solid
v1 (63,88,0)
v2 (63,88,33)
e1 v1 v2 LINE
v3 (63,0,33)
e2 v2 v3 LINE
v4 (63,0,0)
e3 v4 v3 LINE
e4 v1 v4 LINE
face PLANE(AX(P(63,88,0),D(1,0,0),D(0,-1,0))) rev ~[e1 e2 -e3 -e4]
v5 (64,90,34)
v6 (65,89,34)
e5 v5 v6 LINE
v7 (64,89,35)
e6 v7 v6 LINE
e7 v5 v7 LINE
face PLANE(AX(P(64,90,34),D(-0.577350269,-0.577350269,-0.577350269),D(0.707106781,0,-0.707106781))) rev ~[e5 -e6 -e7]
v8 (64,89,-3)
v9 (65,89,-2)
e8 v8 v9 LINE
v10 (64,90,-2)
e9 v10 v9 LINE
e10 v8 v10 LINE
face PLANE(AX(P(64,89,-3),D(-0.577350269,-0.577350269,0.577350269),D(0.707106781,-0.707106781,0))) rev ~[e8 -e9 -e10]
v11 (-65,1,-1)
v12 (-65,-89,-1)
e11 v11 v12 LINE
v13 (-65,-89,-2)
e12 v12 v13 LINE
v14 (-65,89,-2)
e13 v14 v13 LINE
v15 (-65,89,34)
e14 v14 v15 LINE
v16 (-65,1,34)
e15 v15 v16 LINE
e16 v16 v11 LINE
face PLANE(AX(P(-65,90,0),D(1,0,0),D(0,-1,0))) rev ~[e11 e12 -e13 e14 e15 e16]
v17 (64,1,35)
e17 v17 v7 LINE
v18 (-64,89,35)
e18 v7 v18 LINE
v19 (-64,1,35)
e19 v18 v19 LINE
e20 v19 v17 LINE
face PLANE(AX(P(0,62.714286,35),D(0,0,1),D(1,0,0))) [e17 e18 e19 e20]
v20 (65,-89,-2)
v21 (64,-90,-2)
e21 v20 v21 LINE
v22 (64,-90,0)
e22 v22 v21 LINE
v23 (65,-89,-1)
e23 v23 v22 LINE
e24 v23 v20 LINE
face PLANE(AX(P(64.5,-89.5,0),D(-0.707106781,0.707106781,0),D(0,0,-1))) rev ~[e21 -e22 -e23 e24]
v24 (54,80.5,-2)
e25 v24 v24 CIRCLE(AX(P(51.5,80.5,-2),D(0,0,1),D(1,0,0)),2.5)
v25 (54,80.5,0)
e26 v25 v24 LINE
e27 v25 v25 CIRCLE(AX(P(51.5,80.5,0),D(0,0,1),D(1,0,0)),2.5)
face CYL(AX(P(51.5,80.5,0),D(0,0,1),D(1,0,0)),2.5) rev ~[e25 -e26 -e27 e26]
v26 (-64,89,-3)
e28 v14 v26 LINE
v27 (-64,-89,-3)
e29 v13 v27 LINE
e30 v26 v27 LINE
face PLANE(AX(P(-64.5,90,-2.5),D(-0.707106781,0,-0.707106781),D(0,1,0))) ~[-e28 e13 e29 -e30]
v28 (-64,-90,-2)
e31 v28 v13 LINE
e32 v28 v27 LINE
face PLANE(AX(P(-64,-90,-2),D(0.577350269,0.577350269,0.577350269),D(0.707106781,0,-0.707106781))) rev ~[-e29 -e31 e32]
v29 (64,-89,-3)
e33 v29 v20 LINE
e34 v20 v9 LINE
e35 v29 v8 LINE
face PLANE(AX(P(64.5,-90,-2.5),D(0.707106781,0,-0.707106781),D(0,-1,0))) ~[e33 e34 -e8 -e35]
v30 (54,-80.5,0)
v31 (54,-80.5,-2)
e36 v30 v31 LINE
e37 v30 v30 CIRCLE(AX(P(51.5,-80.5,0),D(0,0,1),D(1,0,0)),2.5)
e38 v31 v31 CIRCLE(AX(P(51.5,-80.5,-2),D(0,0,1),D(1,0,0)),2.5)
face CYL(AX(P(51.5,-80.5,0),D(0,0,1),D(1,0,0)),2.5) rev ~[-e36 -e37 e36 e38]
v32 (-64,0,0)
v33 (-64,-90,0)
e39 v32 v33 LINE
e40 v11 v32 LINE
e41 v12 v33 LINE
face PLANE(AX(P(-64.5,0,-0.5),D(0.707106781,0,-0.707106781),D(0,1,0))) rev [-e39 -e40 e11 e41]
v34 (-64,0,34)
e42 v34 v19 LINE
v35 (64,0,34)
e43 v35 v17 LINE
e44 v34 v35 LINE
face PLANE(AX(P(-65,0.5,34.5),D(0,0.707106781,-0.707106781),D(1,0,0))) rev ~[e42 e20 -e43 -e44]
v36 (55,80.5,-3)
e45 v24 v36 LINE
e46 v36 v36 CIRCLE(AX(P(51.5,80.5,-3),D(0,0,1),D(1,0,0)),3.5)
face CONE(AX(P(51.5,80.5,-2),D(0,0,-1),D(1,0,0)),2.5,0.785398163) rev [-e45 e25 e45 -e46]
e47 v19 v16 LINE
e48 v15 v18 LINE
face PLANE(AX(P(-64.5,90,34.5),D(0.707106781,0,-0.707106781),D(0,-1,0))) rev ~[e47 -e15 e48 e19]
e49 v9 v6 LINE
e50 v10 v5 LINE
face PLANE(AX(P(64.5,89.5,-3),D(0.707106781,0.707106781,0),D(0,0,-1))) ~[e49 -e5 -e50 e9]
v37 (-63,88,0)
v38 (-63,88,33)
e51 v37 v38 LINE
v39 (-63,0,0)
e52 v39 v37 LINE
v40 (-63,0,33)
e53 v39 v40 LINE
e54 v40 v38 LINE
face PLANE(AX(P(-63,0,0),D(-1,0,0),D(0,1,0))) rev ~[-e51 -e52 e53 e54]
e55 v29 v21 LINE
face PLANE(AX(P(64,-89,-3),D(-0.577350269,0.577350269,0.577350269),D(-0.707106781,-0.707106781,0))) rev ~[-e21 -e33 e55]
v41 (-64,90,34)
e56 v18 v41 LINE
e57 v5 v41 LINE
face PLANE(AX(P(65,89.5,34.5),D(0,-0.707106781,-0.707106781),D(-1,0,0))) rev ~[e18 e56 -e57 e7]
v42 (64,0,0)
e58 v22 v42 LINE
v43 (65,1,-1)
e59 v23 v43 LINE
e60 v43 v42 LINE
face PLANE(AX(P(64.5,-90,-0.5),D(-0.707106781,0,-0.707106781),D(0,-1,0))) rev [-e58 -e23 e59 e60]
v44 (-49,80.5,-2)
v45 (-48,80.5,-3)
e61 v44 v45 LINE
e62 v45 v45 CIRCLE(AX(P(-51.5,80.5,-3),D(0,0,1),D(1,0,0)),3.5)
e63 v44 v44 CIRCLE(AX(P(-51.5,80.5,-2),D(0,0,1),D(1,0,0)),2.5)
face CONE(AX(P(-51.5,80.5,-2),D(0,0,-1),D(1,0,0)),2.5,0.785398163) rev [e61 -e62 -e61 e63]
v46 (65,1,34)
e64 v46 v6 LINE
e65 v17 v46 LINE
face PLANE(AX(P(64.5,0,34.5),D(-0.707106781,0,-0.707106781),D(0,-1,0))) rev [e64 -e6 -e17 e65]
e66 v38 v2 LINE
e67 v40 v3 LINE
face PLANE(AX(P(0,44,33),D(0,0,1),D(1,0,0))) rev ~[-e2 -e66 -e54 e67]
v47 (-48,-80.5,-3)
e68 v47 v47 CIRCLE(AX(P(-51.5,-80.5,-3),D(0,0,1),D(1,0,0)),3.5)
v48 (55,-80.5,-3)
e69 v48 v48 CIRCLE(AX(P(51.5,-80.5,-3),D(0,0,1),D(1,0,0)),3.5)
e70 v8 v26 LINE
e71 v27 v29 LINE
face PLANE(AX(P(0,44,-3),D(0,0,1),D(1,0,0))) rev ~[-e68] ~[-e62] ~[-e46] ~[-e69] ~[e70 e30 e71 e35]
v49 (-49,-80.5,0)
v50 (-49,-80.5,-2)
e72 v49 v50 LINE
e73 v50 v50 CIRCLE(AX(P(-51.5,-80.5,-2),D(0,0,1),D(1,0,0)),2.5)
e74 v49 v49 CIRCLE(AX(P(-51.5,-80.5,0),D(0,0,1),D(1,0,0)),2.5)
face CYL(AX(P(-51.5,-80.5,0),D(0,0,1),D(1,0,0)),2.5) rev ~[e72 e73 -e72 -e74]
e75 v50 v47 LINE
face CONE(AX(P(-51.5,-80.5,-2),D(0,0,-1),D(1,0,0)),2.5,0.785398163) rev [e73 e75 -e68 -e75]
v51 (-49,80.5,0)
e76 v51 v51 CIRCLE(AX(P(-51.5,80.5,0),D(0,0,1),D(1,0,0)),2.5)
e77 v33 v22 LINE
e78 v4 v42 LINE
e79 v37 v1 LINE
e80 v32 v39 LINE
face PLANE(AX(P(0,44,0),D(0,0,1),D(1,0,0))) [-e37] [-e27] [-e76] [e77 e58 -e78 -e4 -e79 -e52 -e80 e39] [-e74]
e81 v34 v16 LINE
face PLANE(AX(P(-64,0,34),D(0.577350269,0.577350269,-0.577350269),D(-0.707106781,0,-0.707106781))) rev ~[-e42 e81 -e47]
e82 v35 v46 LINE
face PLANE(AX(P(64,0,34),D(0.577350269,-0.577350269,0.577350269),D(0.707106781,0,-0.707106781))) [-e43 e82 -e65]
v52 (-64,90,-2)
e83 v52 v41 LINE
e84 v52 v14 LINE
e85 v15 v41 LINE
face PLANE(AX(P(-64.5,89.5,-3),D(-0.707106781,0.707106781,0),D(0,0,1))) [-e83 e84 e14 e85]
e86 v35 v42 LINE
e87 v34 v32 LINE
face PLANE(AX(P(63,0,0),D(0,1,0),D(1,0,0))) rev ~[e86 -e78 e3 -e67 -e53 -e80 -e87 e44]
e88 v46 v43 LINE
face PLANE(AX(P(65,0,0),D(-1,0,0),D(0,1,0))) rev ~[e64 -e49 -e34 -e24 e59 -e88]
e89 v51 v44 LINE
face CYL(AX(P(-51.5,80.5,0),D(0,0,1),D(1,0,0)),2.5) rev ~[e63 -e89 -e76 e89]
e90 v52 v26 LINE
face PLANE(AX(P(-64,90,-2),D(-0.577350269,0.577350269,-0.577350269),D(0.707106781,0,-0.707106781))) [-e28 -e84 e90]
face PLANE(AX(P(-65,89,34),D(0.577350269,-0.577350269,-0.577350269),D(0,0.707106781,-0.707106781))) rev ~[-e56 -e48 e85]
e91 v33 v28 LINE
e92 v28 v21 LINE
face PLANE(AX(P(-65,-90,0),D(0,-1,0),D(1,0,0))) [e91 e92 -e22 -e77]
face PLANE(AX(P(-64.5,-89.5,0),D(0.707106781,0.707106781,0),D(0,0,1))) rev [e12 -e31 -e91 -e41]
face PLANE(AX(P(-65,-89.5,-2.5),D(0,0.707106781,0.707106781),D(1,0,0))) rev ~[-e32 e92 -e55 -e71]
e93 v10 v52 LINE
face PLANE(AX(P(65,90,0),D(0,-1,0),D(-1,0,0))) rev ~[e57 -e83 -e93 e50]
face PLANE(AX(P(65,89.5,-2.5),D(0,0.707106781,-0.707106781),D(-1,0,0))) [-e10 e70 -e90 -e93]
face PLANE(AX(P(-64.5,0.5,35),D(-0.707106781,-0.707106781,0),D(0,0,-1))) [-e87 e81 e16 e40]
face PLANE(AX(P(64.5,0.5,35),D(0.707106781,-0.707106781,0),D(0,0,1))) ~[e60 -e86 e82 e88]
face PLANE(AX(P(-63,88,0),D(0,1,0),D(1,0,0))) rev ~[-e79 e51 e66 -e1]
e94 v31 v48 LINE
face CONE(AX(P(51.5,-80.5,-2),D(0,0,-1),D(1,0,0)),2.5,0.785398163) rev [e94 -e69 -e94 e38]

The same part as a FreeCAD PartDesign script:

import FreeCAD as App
import Part
import Sketcher
from FreeCAD import Vector


def edges_at(feature, points):
    """Names of the edges that pass closest to the given points."""
    edges = feature.Shape.Edges
    near = lambda p: min(range(len(edges)), key=lambda i: edges[i].distToShape(Part.Vertex(*p))[0])
    return sorted({f"Edge{near(p) + 1}" for p in points})

doc = App.newDocument("Part")
body = doc.addObject("PartDesign::Body", "Body")

sketch1 = doc.addObject("Sketcher::SketchObject", "Sketch")
body.addObject(sketch1)
sketch1.AttachmentSupport = (doc.XY_Plane, [""])
sketch1.MapMode = "FlatFace"
sketch1.addGeometry(Part.LineSegment(Vector(65, 90, 0), Vector(-65, 90, 0)), False)
sketch1.addGeometry(Part.LineSegment(Vector(-65, 90, 0), Vector(-65, -90, 0)), False)
sketch1.addGeometry(Part.LineSegment(Vector(-65, -90, 0), Vector(65, -90, 0)), False)
sketch1.addGeometry(Part.LineSegment(Vector(65, -90, 0), Vector(65, 90, 0)), False)
sketch1.addGeometry(Part.Circle(Vector(-51.5, -80.5, 0), Vector(0, 0, 1), 2.5), False)
sketch1.addGeometry(Part.Circle(Vector(51.5, -80.5, 0), Vector(0, 0, 1), 2.5), False)
sketch1.addGeometry(Part.Circle(Vector(-51.5, 80.5, 0), Vector(0, 0, 1), 2.5), False)
sketch1.addGeometry(Part.Circle(Vector(51.5, 80.5, 0), Vector(0, 0, 1), 2.5), False)
sketch1.addConstraint(Sketcher.Constraint("Coincident", 0, 2, 1, 1))
sketch1.addConstraint(Sketcher.Constraint("Coincident", 1, 2, 2, 1))
sketch1.addConstraint(Sketcher.Constraint("Coincident", 2, 2, 3, 1))
sketch1.addConstraint(Sketcher.Constraint("Coincident", 3, 2, 0, 1))
sketch1.addConstraint(Sketcher.Constraint("Horizontal", 0))
sketch1.addConstraint(Sketcher.Constraint("Vertical", 1))
sketch1.addConstraint(Sketcher.Constraint("Horizontal", 2))
sketch1.addConstraint(Sketcher.Constraint("Vertical", 3))
sketch1.addConstraint(Sketcher.Constraint("Equal", 4, 5))
sketch1.addConstraint(Sketcher.Constraint("Equal", 5, 6))
sketch1.addConstraint(Sketcher.Constraint("Equal", 6, 7))
sketch1.addConstraint(Sketcher.Constraint("Symmetric", 5, 3, 6, 3, -1, 1))
sketch1.addConstraint(Sketcher.Constraint("Symmetric", 4, 3, 7, 3, -1, 1))
sketch1.addConstraint(Sketcher.Constraint("Symmetric", 0, 2, 2, 2, -1, 1))
sketch1.addConstraint(Sketcher.Constraint("Symmetric", 4, 3, 5, 3, -2))
sketch1.addConstraint(Sketcher.Constraint("Diameter", 4, 5.0))
sketch1.addConstraint(Sketcher.Constraint("DistanceX", 0, 2, 0, 1, 130.0))
sketch1.addConstraint(Sketcher.Constraint("DistanceY", 1, 2, 1, 1, 180.0))
sketch1.addConstraint(Sketcher.Constraint("DistanceX", 4, 3, 5, 3, 103.0))
sketch1.addConstraint(Sketcher.Constraint("DistanceY", 4, 3, 6, 3, 161.0))
pad1 = doc.addObject("PartDesign::Pad", "Pad")
body.addObject(pad1)
pad1.Profile = sketch1
pad1.Length = 3
pad1.Reversed = True

sketch2 = doc.addObject("Sketcher::SketchObject", "Sketch001")
body.addObject(sketch2)
sketch2.AttachmentSupport = (doc.XY_Plane, [""])
sketch2.MapMode = "FlatFace"
sketch2.addGeometry(Part.LineSegment(Vector(65, 0, 0), Vector(65, 90, 0)), False)
sketch2.addGeometry(Part.LineSegment(Vector(65, 90, 0), Vector(-65, 90, 0)), False)
sketch2.addGeometry(Part.LineSegment(Vector(-65, 90, 0), Vector(-65, 0, 0)), False)
sketch2.addGeometry(Part.LineSegment(Vector(-65, 0, 0), Vector(-63, 0, 0)), False)
sketch2.addGeometry(Part.LineSegment(Vector(-63, 0, 0), Vector(-63, 88, 0)), False)
sketch2.addGeometry(Part.LineSegment(Vector(-63, 88, 0), Vector(63, 88, 0)), False)
sketch2.addGeometry(Part.LineSegment(Vector(63, 88, 0), Vector(63, 0, 0)), False)
sketch2.addGeometry(Part.LineSegment(Vector(63, 0, 0), Vector(65, 0, 0)), False)
sketch2.addConstraint(Sketcher.Constraint("Coincident", 0, 2, 1, 1))
sketch2.addConstraint(Sketcher.Constraint("Coincident", 1, 2, 2, 1))
sketch2.addConstraint(Sketcher.Constraint("Coincident", 2, 2, 3, 1))
sketch2.addConstraint(Sketcher.Constraint("Coincident", 3, 2, 4, 1))
sketch2.addConstraint(Sketcher.Constraint("Coincident", 4, 2, 5, 1))
sketch2.addConstraint(Sketcher.Constraint("Coincident", 5, 2, 6, 1))
sketch2.addConstraint(Sketcher.Constraint("Coincident", 6, 2, 7, 1))
sketch2.addConstraint(Sketcher.Constraint("Coincident", 7, 2, 0, 1))
sketch2.addConstraint(Sketcher.Constraint("Vertical", 0))
sketch2.addConstraint(Sketcher.Constraint("Horizontal", 1))
sketch2.addConstraint(Sketcher.Constraint("Vertical", 2))
sketch2.addConstraint(Sketcher.Constraint("Horizontal", 3))
sketch2.addConstraint(Sketcher.Constraint("Vertical", 4))
sketch2.addConstraint(Sketcher.Constraint("Horizontal", 5))
sketch2.addConstraint(Sketcher.Constraint("Vertical", 6))
sketch2.addConstraint(Sketcher.Constraint("Horizontal", 7))
sketch2.addConstraint(Sketcher.Constraint("Symmetric", 3, 2, 6, 2, -1, 1))
sketch2.addConstraint(Sketcher.Constraint("Symmetric", 2, 2, 7, 2, -2))
sketch2.addConstraint(Sketcher.Constraint("DistanceX", 1, 2, 1, 1, 130.0))
sketch2.addConstraint(Sketcher.Constraint("DistanceX", 3, 1, 3, 2, 2.0))
sketch2.addConstraint(Sketcher.Constraint("DistanceY", 0, 1, 0, 2, 90.0))
sketch2.addConstraint(Sketcher.Constraint("DistanceY", 4, 1, 4, 2, 88.0))
pad2 = doc.addObject("PartDesign::Pad", "Pad001")
body.addObject(pad2)
pad2.Profile = sketch2
pad2.Length = 35

sketch3 = doc.addObject("Sketcher::SketchObject", "Sketch002")
body.addObject(sketch3)
sketch3.AttachmentSupport = (doc.XY_Plane, [""])
sketch3.MapMode = "FlatFace"
sketch3.AttachmentOffset = App.Placement(Vector(0, 0, 33), App.Rotation())
sketch3.addGeometry(Part.LineSegment(Vector(65, 0, 0), Vector(65, 90, 0)), False)
sketch3.addGeometry(Part.LineSegment(Vector(65, 90, 0), Vector(-65, 90, 0)), False)
sketch3.addGeometry(Part.LineSegment(Vector(-65, 90, 0), Vector(-65, 0, 0)), False)
sketch3.addGeometry(Part.LineSegment(Vector(-65, 0, 0), Vector(65, 0, 0)), False)
sketch3.addConstraint(Sketcher.Constraint("Coincident", 0, 2, 1, 1))
sketch3.addConstraint(Sketcher.Constraint("Coincident", 1, 2, 2, 1))
sketch3.addConstraint(Sketcher.Constraint("Coincident", 2, 2, 3, 1))
sketch3.addConstraint(Sketcher.Constraint("Coincident", 3, 2, 0, 1))
sketch3.addConstraint(Sketcher.Constraint("Vertical", 0))
sketch3.addConstraint(Sketcher.Constraint("Horizontal", 1))
sketch3.addConstraint(Sketcher.Constraint("Vertical", 2))
sketch3.addConstraint(Sketcher.Constraint("Horizontal", 3))
sketch3.addConstraint(Sketcher.Constraint("Symmetric", 2, 2, 3, 2, -1, 1))
sketch3.addConstraint(Sketcher.Constraint("DistanceX", 1, 2, 1, 1, 130.0))
sketch3.addConstraint(Sketcher.Constraint("DistanceY", 0, 1, 0, 2, 90.0))
pad3 = doc.addObject("PartDesign::Pad", "Pad002")
body.addObject(pad3)
pad3.Profile = sketch3
pad3.Length = 2
doc.recompute()

chamfer = doc.addObject("PartDesign::Chamfer", "Chamfer")
body.addObject(chamfer)
chamfer.Base = (pad3, edges_at(pad3, [
    (65, 45, 35),
    (0, 90, 35),
    (-65, 45, 35),
    (0, 0, 35),
    (-65, 0, -3),
    (-65, -90, -1.5),
    (-65, -45, 0),
    (-65, 0, 17.5),
    (-65, 90, 16),
    (65, 90, 16),
    (0, 90, -3),
    (65, -45, 0),
    (65, -90, -1.5),
    (65, 0, -3),
    (65, 0, 17.5),
    (-54, 80.5, -3),
    (49, 80.5, -3),
    (0, -90, -3),
    (-54, -80.5, -3),
    (49, -80.5, -3),
]))
chamfer.Size = 1

doc.recompute()
